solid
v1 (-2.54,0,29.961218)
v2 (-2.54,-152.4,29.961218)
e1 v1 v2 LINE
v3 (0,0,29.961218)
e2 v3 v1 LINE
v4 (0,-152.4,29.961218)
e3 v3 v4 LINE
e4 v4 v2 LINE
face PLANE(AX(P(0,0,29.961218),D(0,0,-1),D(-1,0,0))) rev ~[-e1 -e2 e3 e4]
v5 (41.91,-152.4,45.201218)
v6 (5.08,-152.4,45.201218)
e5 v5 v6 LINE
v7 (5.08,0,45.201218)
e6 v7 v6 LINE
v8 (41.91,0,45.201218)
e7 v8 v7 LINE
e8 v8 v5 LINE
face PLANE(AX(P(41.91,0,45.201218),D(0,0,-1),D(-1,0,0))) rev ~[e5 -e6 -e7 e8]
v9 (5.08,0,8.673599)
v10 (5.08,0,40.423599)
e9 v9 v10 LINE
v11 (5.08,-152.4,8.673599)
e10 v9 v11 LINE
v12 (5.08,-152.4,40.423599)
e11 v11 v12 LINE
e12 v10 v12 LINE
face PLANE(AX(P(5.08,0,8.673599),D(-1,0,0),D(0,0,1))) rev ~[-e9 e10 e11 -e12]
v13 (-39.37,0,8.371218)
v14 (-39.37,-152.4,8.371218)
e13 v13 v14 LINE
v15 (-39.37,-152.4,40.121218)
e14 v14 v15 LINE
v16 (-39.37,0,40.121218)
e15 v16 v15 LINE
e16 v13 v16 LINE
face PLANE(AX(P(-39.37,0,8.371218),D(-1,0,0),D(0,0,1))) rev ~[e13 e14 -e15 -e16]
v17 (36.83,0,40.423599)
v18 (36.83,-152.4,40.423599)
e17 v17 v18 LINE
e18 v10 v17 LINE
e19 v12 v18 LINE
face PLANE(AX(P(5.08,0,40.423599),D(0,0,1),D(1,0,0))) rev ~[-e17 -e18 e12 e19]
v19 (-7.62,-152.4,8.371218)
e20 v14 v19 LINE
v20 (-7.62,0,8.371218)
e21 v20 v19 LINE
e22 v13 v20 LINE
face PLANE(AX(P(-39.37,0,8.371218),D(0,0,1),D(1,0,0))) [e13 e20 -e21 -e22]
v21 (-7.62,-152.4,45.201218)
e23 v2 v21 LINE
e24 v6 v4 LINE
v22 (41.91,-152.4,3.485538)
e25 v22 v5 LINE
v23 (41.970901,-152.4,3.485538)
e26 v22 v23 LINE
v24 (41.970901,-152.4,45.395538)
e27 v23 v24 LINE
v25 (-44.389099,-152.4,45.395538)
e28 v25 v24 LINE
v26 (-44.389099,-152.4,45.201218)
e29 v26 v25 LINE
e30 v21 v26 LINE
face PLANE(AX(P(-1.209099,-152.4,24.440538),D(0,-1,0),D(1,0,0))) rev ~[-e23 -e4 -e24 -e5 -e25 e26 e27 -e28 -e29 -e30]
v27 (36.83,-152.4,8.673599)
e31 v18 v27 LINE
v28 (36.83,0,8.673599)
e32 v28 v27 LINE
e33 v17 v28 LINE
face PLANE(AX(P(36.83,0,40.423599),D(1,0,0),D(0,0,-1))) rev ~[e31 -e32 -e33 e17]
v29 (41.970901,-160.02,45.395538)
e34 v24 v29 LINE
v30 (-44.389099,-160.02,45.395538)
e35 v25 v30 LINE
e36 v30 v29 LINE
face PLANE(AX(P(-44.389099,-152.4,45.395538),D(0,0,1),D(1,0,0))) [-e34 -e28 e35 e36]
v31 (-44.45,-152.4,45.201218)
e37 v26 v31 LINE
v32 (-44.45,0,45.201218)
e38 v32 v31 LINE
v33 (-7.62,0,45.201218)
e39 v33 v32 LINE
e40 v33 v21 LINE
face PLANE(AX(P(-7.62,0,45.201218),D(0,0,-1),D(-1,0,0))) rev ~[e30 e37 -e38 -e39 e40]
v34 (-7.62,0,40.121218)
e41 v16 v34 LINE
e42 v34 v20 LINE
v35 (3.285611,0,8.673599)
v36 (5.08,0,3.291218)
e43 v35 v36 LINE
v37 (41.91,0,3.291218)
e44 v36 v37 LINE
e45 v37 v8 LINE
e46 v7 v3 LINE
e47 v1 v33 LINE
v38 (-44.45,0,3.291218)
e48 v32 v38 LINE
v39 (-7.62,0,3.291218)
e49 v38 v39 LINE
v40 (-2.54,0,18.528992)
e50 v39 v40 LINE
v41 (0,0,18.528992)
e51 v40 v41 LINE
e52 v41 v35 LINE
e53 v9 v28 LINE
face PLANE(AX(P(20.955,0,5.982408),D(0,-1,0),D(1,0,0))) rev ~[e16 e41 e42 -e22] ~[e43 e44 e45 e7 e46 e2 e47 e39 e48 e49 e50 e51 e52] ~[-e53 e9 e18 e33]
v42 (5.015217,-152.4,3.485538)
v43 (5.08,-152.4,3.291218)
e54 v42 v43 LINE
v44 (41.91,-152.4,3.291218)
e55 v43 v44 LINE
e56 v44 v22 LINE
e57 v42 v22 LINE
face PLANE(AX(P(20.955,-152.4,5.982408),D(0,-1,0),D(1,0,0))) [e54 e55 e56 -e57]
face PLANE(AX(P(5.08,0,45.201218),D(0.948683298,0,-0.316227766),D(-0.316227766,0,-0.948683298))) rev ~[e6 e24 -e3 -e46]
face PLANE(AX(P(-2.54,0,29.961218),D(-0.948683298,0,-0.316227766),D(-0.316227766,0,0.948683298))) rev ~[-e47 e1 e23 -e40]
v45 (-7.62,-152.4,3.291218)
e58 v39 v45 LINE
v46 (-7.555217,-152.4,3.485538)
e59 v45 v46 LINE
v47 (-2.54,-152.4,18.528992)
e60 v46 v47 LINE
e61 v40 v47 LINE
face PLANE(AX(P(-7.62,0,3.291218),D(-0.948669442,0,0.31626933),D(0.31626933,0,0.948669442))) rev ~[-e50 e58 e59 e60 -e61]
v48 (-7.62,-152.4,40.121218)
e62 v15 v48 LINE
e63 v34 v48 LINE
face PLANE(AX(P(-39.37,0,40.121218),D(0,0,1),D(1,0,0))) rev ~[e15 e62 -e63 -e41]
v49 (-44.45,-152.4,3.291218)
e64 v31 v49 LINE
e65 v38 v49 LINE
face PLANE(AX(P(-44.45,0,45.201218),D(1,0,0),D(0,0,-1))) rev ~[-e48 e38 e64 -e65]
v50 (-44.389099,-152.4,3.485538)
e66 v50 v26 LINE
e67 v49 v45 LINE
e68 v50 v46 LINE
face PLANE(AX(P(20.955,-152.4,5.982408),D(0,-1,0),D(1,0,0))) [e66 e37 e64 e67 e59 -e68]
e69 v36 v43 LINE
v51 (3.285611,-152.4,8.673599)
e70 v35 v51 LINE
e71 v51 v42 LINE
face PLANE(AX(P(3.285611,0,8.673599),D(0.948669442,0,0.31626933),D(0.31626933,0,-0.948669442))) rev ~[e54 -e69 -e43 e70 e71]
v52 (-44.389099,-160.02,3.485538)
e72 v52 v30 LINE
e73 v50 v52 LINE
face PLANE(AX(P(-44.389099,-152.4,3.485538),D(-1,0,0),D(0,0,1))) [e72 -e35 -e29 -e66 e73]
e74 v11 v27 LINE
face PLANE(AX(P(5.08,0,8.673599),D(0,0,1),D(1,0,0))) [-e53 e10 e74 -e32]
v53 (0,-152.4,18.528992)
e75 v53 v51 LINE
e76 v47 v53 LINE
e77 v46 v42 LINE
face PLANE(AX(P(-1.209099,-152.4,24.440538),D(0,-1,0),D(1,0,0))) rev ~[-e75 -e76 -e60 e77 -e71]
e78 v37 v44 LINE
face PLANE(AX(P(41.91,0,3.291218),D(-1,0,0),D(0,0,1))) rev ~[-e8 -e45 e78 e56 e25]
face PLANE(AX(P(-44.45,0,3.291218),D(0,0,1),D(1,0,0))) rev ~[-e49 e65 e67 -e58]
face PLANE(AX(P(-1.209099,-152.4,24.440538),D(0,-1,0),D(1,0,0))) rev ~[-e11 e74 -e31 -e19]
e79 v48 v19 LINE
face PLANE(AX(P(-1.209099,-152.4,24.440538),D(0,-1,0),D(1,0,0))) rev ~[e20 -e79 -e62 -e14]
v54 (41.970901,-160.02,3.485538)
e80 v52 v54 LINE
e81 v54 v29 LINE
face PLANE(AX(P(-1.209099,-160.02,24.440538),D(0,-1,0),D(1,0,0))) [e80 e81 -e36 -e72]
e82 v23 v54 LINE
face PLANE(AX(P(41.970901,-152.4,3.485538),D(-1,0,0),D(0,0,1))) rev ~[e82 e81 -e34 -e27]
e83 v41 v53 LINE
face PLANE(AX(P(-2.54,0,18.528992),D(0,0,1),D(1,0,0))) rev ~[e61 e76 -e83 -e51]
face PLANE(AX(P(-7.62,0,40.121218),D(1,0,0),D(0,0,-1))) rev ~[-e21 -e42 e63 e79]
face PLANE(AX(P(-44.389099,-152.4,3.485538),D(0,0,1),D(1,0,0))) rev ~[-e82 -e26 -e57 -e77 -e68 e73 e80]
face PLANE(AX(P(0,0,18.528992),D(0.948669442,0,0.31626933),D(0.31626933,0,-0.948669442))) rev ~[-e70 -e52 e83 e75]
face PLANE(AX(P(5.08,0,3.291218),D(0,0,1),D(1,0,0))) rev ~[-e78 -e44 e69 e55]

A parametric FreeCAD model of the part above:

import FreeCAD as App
import Part
import Sketcher
from FreeCAD import Vector
Q = App.Units.Quantity

doc = App.newDocument("Part")
body = doc.addObject("PartDesign::Body", "Body")

# Sketch on XZ plane
sketch1 = doc.addObject("Sketcher::SketchObject", "Sketch")
body.addObject(sketch1)
sketch1.AttachmentSupport = (doc.XZ_Plane, [""])
sketch1.MapMode = "FlatFace"
sketch1.addGeometry([
    Part.LineSegment(Vector(5.08, 3.291218, 0), Vector(41.91, 3.291218, 0)),  # 0
    Part.LineSegment(Vector(41.91, 3.291218, 0), Vector(41.91, 45.201218, 0)),  # 1
    Part.LineSegment(Vector(41.91, 45.201218, 0), Vector(5.08, 45.201218, 0)),  # 2
    Part.LineSegment(Vector(5.08, 45.201218, 0), Vector(0, 29.961218, 0)),  # 3
    Part.LineSegment(Vector(0, 29.961218, 0), Vector(-2.54, 29.961218, 0)),  # 4
    Part.LineSegment(Vector(-2.54, 29.961218, 0), Vector(-7.62, 45.201218, 0)),  # 5
    Part.LineSegment(Vector(-7.62, 45.201218, 0), Vector(-44.45, 45.201218, 0)),  # 6
    Part.LineSegment(Vector(-44.45, 45.201218, 0), Vector(-44.45, 3.291218, 0)),  # 7
    Part.LineSegment(Vector(-44.45, 3.291218, 0), Vector(-7.62, 3.291218, 0)),  # 8
    Part.LineSegment(Vector(-7.62, 3.291218, 0), Vector(-2.54, 18.528992, 0)),  # 9
    Part.LineSegment(Vector(-2.54, 18.528992, 0), Vector(0, 18.528992, 0)),  # 10
    Part.LineSegment(Vector(0, 18.528992, 0), Vector(3.285611, 8.673599, 0)),  # 11
    Part.LineSegment(Vector(3.285611, 8.673599, 0), Vector(5.08, 3.291218, 0)),  # 12
    Part.LineSegment(Vector(-7.62, 8.371218, 0), Vector(-39.37, 8.371218, 0)),  # 13
    Part.LineSegment(Vector(-39.37, 8.371218, 0), Vector(-39.37, 40.121218, 0)),  # 14
    Part.LineSegment(Vector(-39.37, 40.121218, 0), Vector(-7.62, 40.121218, 0)),  # 15
    Part.LineSegment(Vector(-7.62, 40.121218, 0), Vector(-7.62, 8.371218, 0)),  # 16
    Part.LineSegment(Vector(5.08, 40.423599, 0), Vector(36.83, 40.423599, 0)),  # 17
    Part.LineSegment(Vector(36.83, 40.423599, 0), Vector(36.83, 8.673599, 0)),  # 18
    Part.LineSegment(Vector(36.83, 8.673599, 0), Vector(5.08, 8.673599, 0)),  # 19
    Part.LineSegment(Vector(5.08, 8.673599, 0), Vector(5.08, 40.423599, 0)),  # 20
], False)
sketch1.addConstraint([
    Sketcher.Constraint("Coincident", 0, 2, 1, 1),
    Sketcher.Constraint("Coincident", 1, 2, 2, 1),
    Sketcher.Constraint("Coincident", 2, 2, 3, 1),
    Sketcher.Constraint("Coincident", 3, 2, 4, 1),
    Sketcher.Constraint("Coincident", 4, 2, 5, 1),
    Sketcher.Constraint("Coincident", 5, 2, 6, 1),
    Sketcher.Constraint("Coincident", 6, 2, 7, 1),
    Sketcher.Constraint("Coincident", 7, 2, 8, 1),
    Sketcher.Constraint("Coincident", 8, 2, 9, 1),
    Sketcher.Constraint("Coincident", 9, 2, 10, 1),
    Sketcher.Constraint("Coincident", 10, 2, 11, 1),
    Sketcher.Constraint("Coincident", 11, 2, 12, 1),
    Sketcher.Constraint("Coincident", 12, 2, 0, 1),
    Sketcher.Constraint("Coincident", 13, 2, 14, 1),
    Sketcher.Constraint("Coincident", 14, 2, 15, 1),
    Sketcher.Constraint("Coincident", 15, 2, 16, 1),
    Sketcher.Constraint("Coincident", 16, 2, 13, 1),
    Sketcher.Constraint("Coincident", 17, 2, 18, 1),
    Sketcher.Constraint("Coincident", 18, 2, 19, 1),
    Sketcher.Constraint("Coincident", 19, 2, 20, 1),
    Sketcher.Constraint("Coincident", 20, 2, 17, 1),
    Sketcher.Constraint("Horizontal", 0),
    Sketcher.Constraint("Vertical", 1),
    Sketcher.Constraint("Horizontal", 2),
    Sketcher.Constraint("Horizontal", 4),
    Sketcher.Constraint("Horizontal", 6),
    Sketcher.Constraint("Vertical", 7),
    Sketcher.Constraint("Horizontal", 8),
    Sketcher.Constraint("Horizontal", 10),
    Sketcher.Constraint("Horizontal", 13),
    Sketcher.Constraint("Vertical", 14),
    Sketcher.Constraint("Horizontal", 15),
    Sketcher.Constraint("Vertical", 16),
    Sketcher.Constraint("Horizontal", 17),
    Sketcher.Constraint("Vertical", 18),
    Sketcher.Constraint("Horizontal", 19),
    Sketcher.Constraint("Vertical", 20),
    Sketcher.Constraint("PointOnObject", 3, 2, -2),
    Sketcher.Constraint("PointOnObject", 10, 2, -2),
    Sketcher.Constraint("Parallel", 11, 12),
    Sketcher.Constraint("Horizontal", 2, 2, 5, 2),
    Sketcher.Constraint("Horizontal", 0, 2, 7, 2),
    Sketcher.Constraint("Horizontal", 11, 2, 18, 2),
    Sketcher.Constraint("Vertical", 5, 2, 8, 2),
    Sketcher.Constraint("Vertical", 4, 2, 9, 2),
    Sketcher.Constraint("Vertical", 2, 2, 12, 2),
    Sketcher.Constraint("Vertical", 8, 2, 15, 2),
    Sketcher.Constraint("Vertical", 12, 2, 19, 2),
    Sketcher.Constraint("Equal", 2, 6),
    Sketcher.Constraint("Equal", 15, 17),
    Sketcher.Constraint("Equal", 19, 14),
    Sketcher.Constraint("Equal", 16, 18),
    Sketcher.Constraint("Equal", 3, 5),
    Sketcher.Constraint("DistanceX", 4, 2, 4, 1, Q("0.1 in")),
    Sketcher.Constraint("DistanceX", 0, 1, 0, 2, Q("1.45 in")),
    Sketcher.Constraint("DistanceX", 13, 2, 13, 1, Q("1.25 in")),
    Sketcher.Constraint("DistanceY", 1, 1, 1, 2, Q("1.65 in")),
    Sketcher.Constraint("DistanceX", -1, 1, 2, 2, Q("0.2 in")),
    Sketcher.Constraint("DistanceY", 3, 2, 2, 2, Q("0.6 in")),
    Sketcher.Constraint("DistanceY", 7, 2, 13, 2, Q("0.2 in")),
    Sketcher.Constraint("DistanceY", -1, 1, 11, 2, Q("8.673599 mm")),
    Sketcher.Constraint("Distance", 9, Q("16.062259 mm")),
    Sketcher.Constraint("Distance", 11, Q("10.388649 mm")),
])
pad1 = doc.addObject("PartDesign::Pad", "Pad")
body.addObject(pad1)
pad1.Profile = sketch1
pad1.Length = Q("6 in")

# Sketch on XZ plane
sketch2 = doc.addObject("Sketcher::SketchObject", "Sketch001")
body.addObject(sketch2)
sketch2.AttachmentSupport = (doc.XZ_Plane, [""])
sketch2.MapMode = "FlatFace"
sketch2.AttachmentOffset = App.Placement(Vector(0, 0, 6 * 25.4), App.Rotation())
sketch2.addGeometry([
    Part.LineSegment(Vector(-44.389099, 45.395538, 0), Vector(-44.389099, 3.485538, 0)),
    Part.LineSegment(Vector(-44.389099, 3.485538, 0), Vector(41.970901, 3.485538, 0)),
    Part.LineSegment(Vector(41.970901, 3.485538, 0), Vector(41.970901, 45.395538, 0)),
    Part.LineSegment(Vector(41.970901, 45.395538, 0), Vector(-44.389099, 45.395538, 0)),
], False)
sketch2.addConstraint([
    Sketcher.Constraint("Coincident", 0, 2, 1, 1),
    Sketcher.Constraint("Coincident", 1, 2, 2, 1),
    Sketcher.Constraint("Coincident", 2, 2, 3, 1),
    Sketcher.Constraint("Coincident", 3, 2, 0, 1),
    Sketcher.Constraint("Vertical", 0),
    Sketcher.Constraint("Horizontal", 1),
    Sketcher.Constraint("Vertical", 2),
    Sketcher.Constraint("Horizontal", 3),
    Sketcher.Constraint("DistanceX", 1, 1, 1, 2, Q("3.4 in")),
    Sketcher.Constraint("DistanceY", 0, 2, 0, 1, Q("1.65 in")),
    Sketcher.Constraint("DistanceX", 0, 2, -1, 1, Q("44.389099 mm")),
    Sketcher.Constraint("DistanceY", -1, 1, 0, 2, Q("3.485538 mm")),
])
pad2 = doc.addObject("PartDesign::Pad", "Pad001")
body.addObject(pad2)
pad2.Profile = sketch2
pad2.Length = Q("0.3 in")

doc.recompute()
